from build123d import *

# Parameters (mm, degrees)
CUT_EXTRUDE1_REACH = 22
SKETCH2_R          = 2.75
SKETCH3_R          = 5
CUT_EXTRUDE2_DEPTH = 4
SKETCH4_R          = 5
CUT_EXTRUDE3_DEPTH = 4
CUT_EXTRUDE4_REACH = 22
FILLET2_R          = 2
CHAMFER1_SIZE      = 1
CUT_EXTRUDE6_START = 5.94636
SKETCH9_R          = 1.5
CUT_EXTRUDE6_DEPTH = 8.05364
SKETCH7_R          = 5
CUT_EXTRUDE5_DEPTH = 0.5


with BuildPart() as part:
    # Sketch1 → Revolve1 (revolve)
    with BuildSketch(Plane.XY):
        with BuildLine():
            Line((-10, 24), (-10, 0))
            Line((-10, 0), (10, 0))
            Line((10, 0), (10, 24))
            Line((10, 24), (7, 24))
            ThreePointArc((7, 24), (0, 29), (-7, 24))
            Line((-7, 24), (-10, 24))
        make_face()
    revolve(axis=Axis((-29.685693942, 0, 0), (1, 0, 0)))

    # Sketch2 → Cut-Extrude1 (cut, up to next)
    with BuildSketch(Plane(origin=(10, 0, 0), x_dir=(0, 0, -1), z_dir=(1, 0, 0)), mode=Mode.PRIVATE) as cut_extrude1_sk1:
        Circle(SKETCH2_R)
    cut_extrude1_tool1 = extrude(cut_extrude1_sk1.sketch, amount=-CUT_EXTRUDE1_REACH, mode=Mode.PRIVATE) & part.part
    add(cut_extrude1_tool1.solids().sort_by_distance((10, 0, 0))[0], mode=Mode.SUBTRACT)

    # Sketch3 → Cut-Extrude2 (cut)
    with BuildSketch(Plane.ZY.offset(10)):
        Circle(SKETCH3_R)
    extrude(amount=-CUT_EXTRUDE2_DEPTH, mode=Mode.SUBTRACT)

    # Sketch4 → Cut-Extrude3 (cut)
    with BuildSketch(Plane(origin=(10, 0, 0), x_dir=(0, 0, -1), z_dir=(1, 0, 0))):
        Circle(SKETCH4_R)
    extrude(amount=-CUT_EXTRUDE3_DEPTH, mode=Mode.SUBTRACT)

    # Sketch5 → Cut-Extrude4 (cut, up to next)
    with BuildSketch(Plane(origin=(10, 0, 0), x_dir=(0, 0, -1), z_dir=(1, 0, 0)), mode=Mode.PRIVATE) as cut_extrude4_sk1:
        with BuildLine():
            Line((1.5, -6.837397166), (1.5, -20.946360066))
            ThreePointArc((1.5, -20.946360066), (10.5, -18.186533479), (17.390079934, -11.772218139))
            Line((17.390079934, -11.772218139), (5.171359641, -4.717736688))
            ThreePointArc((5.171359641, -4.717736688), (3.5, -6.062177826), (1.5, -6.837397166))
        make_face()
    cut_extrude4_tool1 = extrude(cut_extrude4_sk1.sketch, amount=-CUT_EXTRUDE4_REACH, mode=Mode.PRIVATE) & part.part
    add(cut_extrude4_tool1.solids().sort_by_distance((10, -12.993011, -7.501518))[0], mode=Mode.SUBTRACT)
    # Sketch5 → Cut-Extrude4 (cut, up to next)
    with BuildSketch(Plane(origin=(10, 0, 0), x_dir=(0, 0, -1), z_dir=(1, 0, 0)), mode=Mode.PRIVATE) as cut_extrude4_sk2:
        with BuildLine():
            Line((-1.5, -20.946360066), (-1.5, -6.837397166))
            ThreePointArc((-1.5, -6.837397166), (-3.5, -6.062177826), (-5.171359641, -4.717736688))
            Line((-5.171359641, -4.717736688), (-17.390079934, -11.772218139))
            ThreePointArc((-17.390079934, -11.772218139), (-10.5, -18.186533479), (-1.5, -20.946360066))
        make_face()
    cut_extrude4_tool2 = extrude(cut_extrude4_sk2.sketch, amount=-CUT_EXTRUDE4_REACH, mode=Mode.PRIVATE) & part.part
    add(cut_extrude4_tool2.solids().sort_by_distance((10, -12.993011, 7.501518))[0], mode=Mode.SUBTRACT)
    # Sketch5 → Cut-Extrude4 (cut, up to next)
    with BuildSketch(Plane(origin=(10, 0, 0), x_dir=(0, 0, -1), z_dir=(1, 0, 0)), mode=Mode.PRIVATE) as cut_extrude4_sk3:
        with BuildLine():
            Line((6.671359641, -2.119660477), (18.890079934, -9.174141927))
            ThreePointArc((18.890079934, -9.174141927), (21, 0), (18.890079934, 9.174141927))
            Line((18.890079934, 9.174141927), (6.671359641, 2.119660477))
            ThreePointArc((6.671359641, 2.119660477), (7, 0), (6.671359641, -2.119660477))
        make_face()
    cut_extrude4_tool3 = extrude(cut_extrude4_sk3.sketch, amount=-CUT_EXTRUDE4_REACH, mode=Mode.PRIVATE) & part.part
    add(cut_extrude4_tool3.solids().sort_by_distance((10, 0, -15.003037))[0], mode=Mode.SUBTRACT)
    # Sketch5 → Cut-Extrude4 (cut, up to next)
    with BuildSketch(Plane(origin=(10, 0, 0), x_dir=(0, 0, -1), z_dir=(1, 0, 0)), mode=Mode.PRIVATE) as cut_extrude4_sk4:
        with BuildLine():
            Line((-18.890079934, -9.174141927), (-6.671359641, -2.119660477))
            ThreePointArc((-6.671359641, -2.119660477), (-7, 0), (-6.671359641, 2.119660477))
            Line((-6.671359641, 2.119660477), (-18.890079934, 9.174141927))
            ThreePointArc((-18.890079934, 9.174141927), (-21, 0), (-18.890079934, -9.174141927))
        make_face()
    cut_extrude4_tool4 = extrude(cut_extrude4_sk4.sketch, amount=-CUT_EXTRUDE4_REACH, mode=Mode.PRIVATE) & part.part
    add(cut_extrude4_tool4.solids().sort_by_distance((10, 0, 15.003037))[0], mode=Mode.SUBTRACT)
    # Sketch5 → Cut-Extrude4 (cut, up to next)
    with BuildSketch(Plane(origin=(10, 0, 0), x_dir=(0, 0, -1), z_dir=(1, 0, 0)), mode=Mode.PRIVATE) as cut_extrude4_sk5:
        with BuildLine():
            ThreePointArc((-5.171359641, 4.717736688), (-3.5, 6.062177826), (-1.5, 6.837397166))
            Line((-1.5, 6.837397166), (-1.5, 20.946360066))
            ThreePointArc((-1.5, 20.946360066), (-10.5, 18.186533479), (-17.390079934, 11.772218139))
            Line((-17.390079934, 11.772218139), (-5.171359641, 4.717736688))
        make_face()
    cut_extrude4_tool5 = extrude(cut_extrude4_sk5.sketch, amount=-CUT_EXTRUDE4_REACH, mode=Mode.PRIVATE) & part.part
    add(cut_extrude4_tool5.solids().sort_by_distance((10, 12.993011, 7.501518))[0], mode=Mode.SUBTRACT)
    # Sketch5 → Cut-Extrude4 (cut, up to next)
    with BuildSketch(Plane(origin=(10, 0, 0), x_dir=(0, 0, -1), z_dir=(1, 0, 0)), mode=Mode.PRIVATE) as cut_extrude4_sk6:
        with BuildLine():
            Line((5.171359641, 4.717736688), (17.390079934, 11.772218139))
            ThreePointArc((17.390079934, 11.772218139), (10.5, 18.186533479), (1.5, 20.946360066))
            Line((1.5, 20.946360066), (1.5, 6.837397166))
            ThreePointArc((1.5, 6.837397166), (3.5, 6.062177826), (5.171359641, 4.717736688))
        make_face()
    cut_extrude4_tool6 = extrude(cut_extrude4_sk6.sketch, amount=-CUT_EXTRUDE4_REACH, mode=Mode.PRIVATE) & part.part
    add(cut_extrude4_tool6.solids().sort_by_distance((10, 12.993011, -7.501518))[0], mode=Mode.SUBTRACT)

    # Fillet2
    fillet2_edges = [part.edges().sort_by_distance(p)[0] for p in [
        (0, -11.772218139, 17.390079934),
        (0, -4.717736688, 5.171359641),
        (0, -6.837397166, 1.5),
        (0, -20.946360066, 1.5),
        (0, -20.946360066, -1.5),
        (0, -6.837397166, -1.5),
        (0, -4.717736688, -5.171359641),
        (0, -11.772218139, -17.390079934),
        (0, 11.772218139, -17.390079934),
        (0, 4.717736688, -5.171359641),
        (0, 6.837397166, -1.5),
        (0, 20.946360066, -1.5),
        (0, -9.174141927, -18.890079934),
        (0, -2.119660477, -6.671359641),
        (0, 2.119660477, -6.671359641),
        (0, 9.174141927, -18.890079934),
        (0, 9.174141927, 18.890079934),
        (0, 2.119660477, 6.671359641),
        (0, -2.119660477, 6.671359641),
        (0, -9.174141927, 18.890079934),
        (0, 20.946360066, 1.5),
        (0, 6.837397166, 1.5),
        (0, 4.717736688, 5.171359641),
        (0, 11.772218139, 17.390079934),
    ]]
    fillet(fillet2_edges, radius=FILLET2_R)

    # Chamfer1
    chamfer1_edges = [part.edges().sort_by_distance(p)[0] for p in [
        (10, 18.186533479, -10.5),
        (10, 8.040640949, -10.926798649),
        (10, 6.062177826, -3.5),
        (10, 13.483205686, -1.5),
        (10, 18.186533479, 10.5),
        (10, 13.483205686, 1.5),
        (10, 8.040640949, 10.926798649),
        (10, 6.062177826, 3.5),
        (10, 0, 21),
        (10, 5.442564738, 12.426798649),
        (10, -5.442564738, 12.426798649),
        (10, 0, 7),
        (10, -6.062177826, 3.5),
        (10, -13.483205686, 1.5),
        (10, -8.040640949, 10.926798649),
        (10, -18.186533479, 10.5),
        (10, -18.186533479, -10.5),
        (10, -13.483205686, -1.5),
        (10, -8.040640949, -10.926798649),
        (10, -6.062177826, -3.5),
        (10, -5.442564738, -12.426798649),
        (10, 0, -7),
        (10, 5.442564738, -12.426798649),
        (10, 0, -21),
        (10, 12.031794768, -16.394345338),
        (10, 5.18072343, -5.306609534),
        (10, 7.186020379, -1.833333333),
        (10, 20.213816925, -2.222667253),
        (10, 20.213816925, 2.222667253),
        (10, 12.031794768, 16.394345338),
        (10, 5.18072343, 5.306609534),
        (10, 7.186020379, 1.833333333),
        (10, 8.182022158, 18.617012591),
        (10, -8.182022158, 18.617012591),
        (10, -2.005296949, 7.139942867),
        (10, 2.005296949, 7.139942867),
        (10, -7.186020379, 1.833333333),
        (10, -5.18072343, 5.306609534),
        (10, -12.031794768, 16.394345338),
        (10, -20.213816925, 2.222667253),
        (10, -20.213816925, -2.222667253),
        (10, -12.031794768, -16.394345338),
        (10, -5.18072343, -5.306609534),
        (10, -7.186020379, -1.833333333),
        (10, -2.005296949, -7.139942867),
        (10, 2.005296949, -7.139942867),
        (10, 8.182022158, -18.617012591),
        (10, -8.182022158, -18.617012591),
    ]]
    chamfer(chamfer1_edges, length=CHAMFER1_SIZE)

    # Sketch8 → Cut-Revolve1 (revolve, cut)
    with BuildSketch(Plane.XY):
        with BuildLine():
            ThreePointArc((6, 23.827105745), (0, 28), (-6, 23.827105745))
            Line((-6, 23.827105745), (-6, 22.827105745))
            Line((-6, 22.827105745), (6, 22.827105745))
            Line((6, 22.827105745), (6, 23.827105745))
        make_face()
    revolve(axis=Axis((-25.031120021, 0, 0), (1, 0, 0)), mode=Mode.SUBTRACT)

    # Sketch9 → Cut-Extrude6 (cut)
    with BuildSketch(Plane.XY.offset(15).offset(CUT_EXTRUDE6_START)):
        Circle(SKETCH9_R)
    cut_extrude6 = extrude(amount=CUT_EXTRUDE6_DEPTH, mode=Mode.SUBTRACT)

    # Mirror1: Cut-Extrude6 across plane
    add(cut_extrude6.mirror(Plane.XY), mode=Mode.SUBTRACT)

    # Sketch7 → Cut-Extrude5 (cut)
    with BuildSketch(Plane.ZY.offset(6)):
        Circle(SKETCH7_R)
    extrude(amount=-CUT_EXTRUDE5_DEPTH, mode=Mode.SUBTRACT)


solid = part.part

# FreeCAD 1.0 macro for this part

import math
import FreeCAD as App
import Part
import Sketcher
Q = App.Units.Quantity


def edges_at(feature, points):
    """Names of the edges that pass closest to the given points."""
    edges = feature.Shape.Edges
    near = lambda p: min(range(len(edges)), key=lambda i: edges[i].distToShape(Part.Vertex(*p))[0])
    return sorted({f"Edge{near(p) + 1}" for p in points})

doc = App.newDocument("Part")
params = doc.addObject("Spreadsheet::Sheet", "Params")
for row, (alias, value) in enumerate([
    ("sketch1_radius", "7.4 mm"),
    ("sketch1_width", "20 mm"),
    ("sketch1_width2", "3 mm"),
    ("sketch1_height", "24 mm"),
    ("revolution_angle", "360 deg"),
    ("sketch2_diameter", "5.5 mm"),
    ("sketch3_diameter", "10 mm"),
    ("pocket2_length", "4 mm"),
    ("sketch4_diameter", "10 mm"),
    ("pocket3_length", "4 mm"),
    ("sketch5_radius", "21 mm"),
    ("sketch5_radius2", "7 mm"),
    ("sketch6_radius", "7 mm"),
    ("sketch6_radius2", "21 mm"),
    ("sketch7_radius", "21 mm"),
    ("sketch7_radius2", "7 mm"),
    ("sketch8_radius", "7 mm"),
    ("sketch8_radius2", "21 mm"),
    ("sketch9_radius", "7 mm"),
    ("sketch9_radius2", "21 mm"),
    ("sketch10_radius", "21 mm"),
    ("sketch10_radius2", "7 mm"),
    ("fillet_radius", "2 mm"),
    ("chamfer_size", "1 mm"),
    ("sketch11_radius", "6.4 mm"),
    ("sketch11_width", "12 mm"),
    ("sketch11_height", "1 mm"),
    ("groove_angle", "360 deg"),
    ("sketch12_diameter", "3 mm"),
    ("pocket10_length", "8.05364 mm"),
    ("sketch13_diameter", "10 mm"),
    ("pocket11_length", "0.5 mm"),
], start=1):
    params.set(f"A{row}", alias)
    params.set(f"B{row}", "=" + value)
    params.setAlias(f"B{row}", alias)

body = doc.addObject("PartDesign::Body", "Body")

# Sketch on XY plane
sketch1 = doc.addObject("Sketcher::SketchObject", "Sketch")
body.addObject(sketch1)
sketch1.AttachmentSupport = (doc.XY_Plane, [""])
sketch1.MapMode = "FlatFace"
sketch1.addGeometry(Part.LineSegment(App.Vector(-10, 24, 0), App.Vector(-10, 0, 0)), False)
sketch1.addGeometry(Part.LineSegment(App.Vector(-10, 0, 0), App.Vector(10, 0, 0)), False)
sketch1.addGeometry(Part.LineSegment(App.Vector(10, 0, 0), App.Vector(10, 24, 0)), False)
sketch1.addGeometry(Part.LineSegment(App.Vector(10, 24, 0), App.Vector(7, 24, 0)), False)
sketch1.addGeometry(Part.ArcOfCircle(Part.Circle(App.Vector(0, 21.6, 0), App.Vector(0, 0, 1), 7.4), math.radians(19), math.radians(161)), False)
sketch1.addGeometry(Part.LineSegment(App.Vector(-7, 24, 0), App.Vector(-10, 24, 0)), False)
sketch1.addConstraint(Sketcher.Constraint("Coincident", 0, 2, 1, 1))
sketch1.addConstraint(Sketcher.Constraint("Coincident", 1, 2, 2, 1))
sketch1.addConstraint(Sketcher.Constraint("Coincident", 2, 2, 3, 1))
sketch1.addConstraint(Sketcher.Constraint("Coincident", 3, 2, 4, 1))
sketch1.addConstraint(Sketcher.Constraint("Coincident", 4, 2, 5, 1))
sketch1.addConstraint(Sketcher.Constraint("Coincident", 5, 2, 0, 1))
sketch1.addConstraint(Sketcher.Constraint("Vertical", 0))
sketch1.addConstraint(Sketcher.Constraint("Horizontal", 1))
sketch1.addConstraint(Sketcher.Constraint("Vertical", 2))
sketch1.addConstraint(Sketcher.Constraint("Horizontal", 3))
sketch1.addConstraint(Sketcher.Constraint("Horizontal", 5))
sketch1.addConstraint(Sketcher.Constraint("Symmetric", 0, 2, 1, 2, -1, 1))
sketch1.addConstraint(Sketcher.Constraint("Symmetric", 3, 2, 4, 2, -2))
sketch1.addConstraint(Sketcher.Constraint("Radius", 4, Q("7.4 mm")))
sketch1.addConstraint(Sketcher.Constraint("DistanceX", 1, 1, 1, 2, Q("20 mm")))
sketch1.addConstraint(Sketcher.Constraint("DistanceX", 3, 2, 3, 1, Q("3 mm")))
sketch1.addConstraint(Sketcher.Constraint("DistanceY", 0, 2, 0, 1, Q("24 mm")))
sketch1.setExpression("Constraints[13]", "Params.sketch1_radius")
sketch1.setExpression("Constraints[14]", "Params.sketch1_width")
sketch1.setExpression("Constraints[15]", "Params.sketch1_width2")
sketch1.setExpression("Constraints[16]", "Params.sketch1_height")
revolution = doc.addObject("PartDesign::Revolution", "Revolution")
body.addObject(revolution)
revolution.Profile = sketch1
revolution.ReferenceAxis = (sketch1, ["H_Axis"])
revolution.setExpression("Angle", "Params.revolution_angle")

# Sketch on YZ plane
sketch2 = doc.addObject("Sketcher::SketchObject", "Sketch001")
body.addObject(sketch2)
sketch2.AttachmentSupport = (doc.YZ_Plane, [""])
sketch2.MapMode = "FlatFace"
sketch2.AttachmentOffset = App.Placement(App.Vector(0, 0, 10), App.Rotation())
sketch2.addGeometry(Part.Circle(App.Vector(0, 0, 0), App.Vector(0, 0, 1), 2.8), False)
sketch2.addConstraint(Sketcher.Constraint("Coincident", 0, 3, -1, 1))
sketch2.addConstraint(Sketcher.Constraint("Diameter", 0, Q("5.5 mm")))
sketch2.setExpression("Constraints[1]", "Params.sketch2_diameter")
pocket1 = doc.addObject("PartDesign::Pocket", "Pocket")
body.addObject(pocket1)
pocket1.Profile = sketch2
pocket1.Type = "UpToFirst"

# Sketch on YZ plane
sketch3 = doc.addObject("Sketcher::SketchObject", "Sketch002")
body.addObject(sketch3)
sketch3.AttachmentSupport = (doc.YZ_Plane, [""])
sketch3.MapMode = "FlatFace"
sketch3.AttachmentOffset = App.Placement(App.Vector(0, 0, -10), App.Rotation())
sketch3.addGeometry(Part.Circle(App.Vector(0, 0, 0), App.Vector(0, 0, 1), 5), False)
sketch3.addConstraint(Sketcher.Constraint("Coincident", 0, 3, -1, 1))
sketch3.addConstraint(Sketcher.Constraint("Diameter", 0, Q("10 mm")))
sketch3.setExpression("Constraints[1]", "Params.sketch3_diameter")
pocket2 = doc.addObject("PartDesign::Pocket", "Pocket001")
body.addObject(pocket2)
pocket2.Profile = sketch3
pocket2.setExpression("Length", "Params.pocket2_length")
pocket2.Reversed = True

# Sketch on YZ plane
sketch4 = doc.addObject("Sketcher::SketchObject", "Sketch003")
body.addObject(sketch4)
sketch4.AttachmentSupport = (doc.YZ_Plane, [""])
sketch4.MapMode = "FlatFace"
sketch4.AttachmentOffset = App.Placement(App.Vector(0, 0, 10), App.Rotation())
sketch4.addGeometry(Part.Circle(App.Vector(0, 0, 0), App.Vector(0, 0, 1), 5), False)
sketch4.addConstraint(Sketcher.Constraint("Coincident", 0, 3, -1, 1))
sketch4.addConstraint(Sketcher.Constraint("Diameter", 0, Q("10 mm")))
sketch4.setExpression("Constraints[1]", "Params.sketch4_diameter")
pocket3 = doc.addObject("PartDesign::Pocket", "Pocket002")
body.addObject(pocket3)
pocket3.Profile = sketch4
pocket3.setExpression("Length", "Params.pocket3_length")

# Sketch on YZ plane
sketch5 = doc.addObject("Sketcher::SketchObject", "Sketch004")
body.addObject(sketch5)
sketch5.AttachmentSupport = (doc.YZ_Plane, [""])
sketch5.MapMode = "FlatFace"
sketch5.AttachmentOffset = App.Placement(App.Vector(0, 0, 10), App.Rotation())
sketch5.addGeometry(Part.LineSegment(App.Vector(-6.8, -1.5, 0), App.Vector(-20.9, -1.5, 0)), False)
sketch5.addGeometry(Part.ArcOfCircle(Part.Circle(App.Vector(0, 0, 0), App.Vector(0, 0, 1), 21), math.radians(-176), math.radians(-124)), False)
sketch5.addGeometry(Part.LineSegment(App.Vector(-11.8, -17.4, 0), App.Vector(-4.7, -5.2, 0)), False)
sketch5.addGeometry(Part.ArcOfCircle(Part.Circle(App.Vector(0, 0, 0), App.Vector(0, 0, 1), 7), math.radians(-168), math.radians(-132)), False)
sketch5.addConstraint(Sketcher.Constraint("Coincident", 0, 2, 1, 1))
sketch5.addConstraint(Sketcher.Constraint("Coincident", 1, 2, 2, 1))
sketch5.addConstraint(Sketcher.Constraint("Coincident", 2, 2, 3, 2))
sketch5.addConstraint(Sketcher.Constraint("Coincident", 3, 1, 0, 1))
sketch5.addConstraint(Sketcher.Constraint("Horizontal", 0))
sketch5.addConstraint(Sketcher.Constraint("Coincident", 1, 3, -1, 1))
sketch5.addConstraint(Sketcher.Constraint("Coincident", 3, 3, -1, 1))
sketch5.addConstraint(Sketcher.Constraint("Radius", 1, Q("21 mm")))
sketch5.addConstraint(Sketcher.Constraint("Radius", 3, Q("7 mm")))
sketch5.addConstraint(Sketcher.Constraint("Angle", 2, Q("60 deg")))
sketch5.addConstraint(Sketcher.Constraint("DistanceY", 0, 2, -1, 1, Q("1.5 mm")))
sketch5.addConstraint(Sketcher.Constraint("DistanceX", 1, 2, -1, 1, Q("11.772218 mm")))
sketch5.setExpression("Constraints[7]", "Params.sketch5_radius")
sketch5.setExpression("Constraints[8]", "Params.sketch5_radius2")
pocket4 = doc.addObject("PartDesign::Pocket", "Pocket003")
body.addObject(pocket4)
pocket4.Profile = sketch5
pocket4.Type = "UpToFirst"

# Sketch on YZ plane
sketch6 = doc.addObject("Sketcher::SketchObject", "Sketch005")
body.addObject(sketch6)
sketch6.AttachmentSupport = (doc.YZ_Plane, [""])
sketch6.MapMode = "FlatFace"
sketch6.AttachmentOffset = App.Placement(App.Vector(0, 0, 10), App.Rotation())
sketch6.addGeometry(Part.LineSegment(App.Vector(-20.9, 1.5, 0), App.Vector(-6.8, 1.5, 0)), False)
sketch6.addGeometry(Part.ArcOfCircle(Part.Circle(App.Vector(0, 0, 0), App.Vector(0, 0, 1), 7), math.radians(132), math.radians(168)), False)
sketch6.addGeometry(Part.LineSegment(App.Vector(-4.7, 5.2, 0), App.Vector(-11.8, 17.4, 0)), False)
sketch6.addGeometry(Part.ArcOfCircle(Part.Circle(App.Vector(0, 0, 0), App.Vector(0, 0, 1), 21), math.radians(124), math.radians(176)), False)
sketch6.addConstraint(Sketcher.Constraint("Coincident", 0, 2, 1, 2))
sketch6.addConstraint(Sketcher.Constraint("Coincident", 1, 1, 2, 1))
sketch6.addConstraint(Sketcher.Constraint("Coincident", 2, 2, 3, 1))
sketch6.addConstraint(Sketcher.Constraint("Coincident", 3, 2, 0, 1))
sketch6.addConstraint(Sketcher.Constraint("Horizontal", 0))
sketch6.addConstraint(Sketcher.Constraint("Coincident", 1, 3, -1, 1))
sketch6.addConstraint(Sketcher.Constraint("Coincident", 3, 3, -1, 1))
sketch6.addConstraint(Sketcher.Constraint("Radius", 1, Q("7 mm")))
sketch6.addConstraint(Sketcher.Constraint("Radius", 3, Q("21 mm")))
sketch6.addConstraint(Sketcher.Constraint("Angle", 2, Q("120 deg")))
sketch6.addConstraint(Sketcher.Constraint("DistanceY", -1, 1, 0, 2, Q("1.5 mm")))
sketch6.addConstraint(Sketcher.Constraint("DistanceY", -1, 1, 1, 1, Q("5.17136 mm")))
sketch6.setExpression("Constraints[7]", "Params.sketch6_radius")
sketch6.setExpression("Constraints[8]", "Params.sketch6_radius2")
pocket5 = doc.addObject("PartDesign::Pocket", "Pocket004")
body.addObject(pocket5)
pocket5.Profile = sketch6
pocket5.Type = "UpToFirst"

# Sketch on YZ plane
sketch7 = doc.addObject("Sketcher::SketchObject", "Sketch006")
body.addObject(sketch7)
sketch7.AttachmentSupport = (doc.YZ_Plane, [""])
sketch7.MapMode = "FlatFace"
sketch7.AttachmentOffset = App.Placement(App.Vector(0, 0, 10), App.Rotation())
sketch7.addGeometry(Part.LineSegment(App.Vector(-2.1, -6.7, 0), App.Vector(-9.2, -18.9, 0)), False)
sketch7.addGeometry(Part.ArcOfCircle(Part.Circle(App.Vector(0, 0, 0), App.Vector(0, 0, 1), 21), math.radians(-116), math.radians(-64)), False)
sketch7.addGeometry(Part.LineSegment(App.Vector(9.2, -18.9, 0), App.Vector(2.1, -6.7, 0)), False)
sketch7.addGeometry(Part.ArcOfCircle(Part.Circle(App.Vector(0, 0, 0), App.Vector(0, 0, 1), 7), math.radians(-108), math.radians(-72)), False)
sketch7.addConstraint(Sketcher.Constraint("Coincident", 0, 2, 1, 1))
sketch7.addConstraint(Sketcher.Constraint("Coincident", 1, 2, 2, 1))
sketch7.addConstraint(Sketcher.Constraint("Coincident", 2, 2, 3, 2))
sketch7.addConstraint(Sketcher.Constraint("Coincident", 3, 1, 0, 1))
sketch7.addConstraint(Sketcher.Constraint("Coincident", 1, 3, -1, 1))
sketch7.addConstraint(Sketcher.Constraint("Coincident", 3, 3, -1, 1))
sketch7.addConstraint(Sketcher.Constraint("Horizontal", 0, 2, 1, 2))
sketch7.addConstraint(Sketcher.Constraint("Horizontal", 2, 2, 3, 1))
sketch7.addConstraint(Sketcher.Constraint("Radius", 1, Q("21 mm")))
sketch7.addConstraint(Sketcher.Constraint("Radius", 3, Q("7 mm")))
sketch7.addConstraint(Sketcher.Constraint("Angle", 0, Q("-120 deg")))
sketch7.addConstraint(Sketcher.Constraint("DistanceX", 0, 2, -1, 1, Q("9.174142 mm")))
sketch7.setExpression("Constraints[8]", "Params.sketch7_radius")
sketch7.setExpression("Constraints[9]", "Params.sketch7_radius2")
pocket6 = doc.addObject("PartDesign::Pocket", "Pocket005")
body.addObject(pocket6)
pocket6.Profile = sketch7
pocket6.Type = "UpToFirst"

# Sketch on YZ plane
sketch8 = doc.addObject("Sketcher::SketchObject", "Sketch007")
body.addObject(sketch8)
sketch8.AttachmentSupport = (doc.YZ_Plane, [""])
sketch8.MapMode = "FlatFace"
sketch8.AttachmentOffset = App.Placement(App.Vector(0, 0, 10), App.Rotation())
sketch8.addGeometry(Part.LineSegment(App.Vector(-9.2, 18.9, 0), App.Vector(-2.1, 6.7, 0)), False)
sketch8.addGeometry(Part.ArcOfCircle(Part.Circle(App.Vector(0, 0, 0), App.Vector(0, 0, 1), 7), math.radians(72), math.radians(108)), False)
sketch8.addGeometry(Part.LineSegment(App.Vector(2.1, 6.7, 0), App.Vector(9.2, 18.9, 0)), False)
sketch8.addGeometry(Part.ArcOfCircle(Part.Circle(App.Vector(0, 0, 0), App.Vector(0, 0, 1), 21), math.radians(64), math.radians(116)), False)
sketch8.addConstraint(Sketcher.Constraint("Coincident", 0, 2, 1, 2))
sketch8.addConstraint(Sketcher.Constraint("Coincident", 1, 1, 2, 1))
sketch8.addConstraint(Sketcher.Constraint("Coincident", 2, 2, 3, 1))
sketch8.addConstraint(Sketcher.Constraint("Coincident", 3, 2, 0, 1))
sketch8.addConstraint(Sketcher.Constraint("Coincident", 1, 3, -1, 1))
sketch8.addConstraint(Sketcher.Constraint("Coincident", 3, 3, -1, 1))
sketch8.addConstraint(Sketcher.Constraint("Horizontal", 0, 2, 1, 1))
sketch8.addConstraint(Sketcher.Constraint("Horizontal", 2, 2, 3, 2))
sketch8.addConstraint(Sketcher.Constraint("Radius", 1, Q("7 mm")))
sketch8.addConstraint(Sketcher.Constraint("Radius", 3, Q("21 mm")))
sketch8.addConstraint(Sketcher.Constraint("Angle", 0, Q("-60 deg")))
sketch8.addConstraint(Sketcher.Constraint("DistanceX", 0, 2, -1, 1, Q("2.11966 mm")))
sketch8.setExpression("Constraints[8]", "Params.sketch8_radius")
sketch8.setExpression("Constraints[9]", "Params.sketch8_radius2")
pocket7 = doc.addObject("PartDesign::Pocket", "Pocket006")
body.addObject(pocket7)
pocket7.Profile = sketch8
pocket7.Type = "UpToFirst"

# Sketch on YZ plane
sketch9 = doc.addObject("Sketcher::SketchObject", "Sketch008")
body.addObject(sketch9)
sketch9.AttachmentSupport = (doc.YZ_Plane, [""])
sketch9.MapMode = "FlatFace"
sketch9.AttachmentOffset = App.Placement(App.Vector(0, 0, 10), App.Rotation())
sketch9.addGeometry(Part.ArcOfCircle(Part.Circle(App.Vector(0, 0, 0), App.Vector(0, 0, 1), 7), math.radians(12), math.radians(48)), False)
sketch9.addGeometry(Part.LineSegment(App.Vector(6.8, 1.5, 0), App.Vector(20.9, 1.5, 0)), False)
sketch9.addGeometry(Part.ArcOfCircle(Part.Circle(App.Vector(0, 0, 0), App.Vector(0, 0, 1), 21), math.radians(4), math.radians(56)), False)
sketch9.addGeometry(Part.LineSegment(App.Vector(11.8, 17.4, 0), App.Vector(4.7, 5.2, 0)), False)
sketch9.addConstraint(Sketcher.Constraint("Coincident", 0, 1, 1, 1))
sketch9.addConstraint(Sketcher.Constraint("Coincident", 1, 2, 2, 1))
sketch9.addConstraint(Sketcher.Constraint("Coincident", 2, 2, 3, 1))
sketch9.addConstraint(Sketcher.Constraint("Coincident", 3, 2, 0, 2))
sketch9.addConstraint(Sketcher.Constraint("Horizontal", 1))
sketch9.addConstraint(Sketcher.Constraint("Coincident", 0, 3, -1, 1))
sketch9.addConstraint(Sketcher.Constraint("Coincident", 2, 3, -1, 1))
sketch9.addConstraint(Sketcher.Constraint("Radius", 0, Q("7 mm")))
sketch9.addConstraint(Sketcher.Constraint("Radius", 2, Q("21 mm")))
sketch9.addConstraint(Sketcher.Constraint("Angle", 3, Q("-120 deg")))
sketch9.addConstraint(Sketcher.Constraint("DistanceY", -1, 1, 0, 1, Q("1.5 mm")))
sketch9.addConstraint(Sketcher.Constraint("DistanceX", -1, 1, 2, 2, Q("11.772218 mm")))
sketch9.setExpression("Constraints[7]", "Params.sketch9_radius")
sketch9.setExpression("Constraints[8]", "Params.sketch9_radius2")
pocket8 = doc.addObject("PartDesign::Pocket", "Pocket007")
body.addObject(pocket8)
pocket8.Profile = sketch9
pocket8.Type = "UpToFirst"

# Sketch on YZ plane
sketch10 = doc.addObject("Sketcher::SketchObject", "Sketch009")
body.addObject(sketch10)
sketch10.AttachmentSupport = (doc.YZ_Plane, [""])
sketch10.MapMode = "FlatFace"
sketch10.AttachmentOffset = App.Placement(App.Vector(0, 0, 10), App.Rotation())
sketch10.addGeometry(Part.LineSegment(App.Vector(4.7, -5.2, 0), App.Vector(11.8, -17.4, 0)), False)
sketch10.addGeometry(Part.ArcOfCircle(Part.Circle(App.Vector(0, 0, 0), App.Vector(0, 0, 1), 21), math.radians(-56), math.radians(-4)), False)
sketch10.addGeometry(Part.LineSegment(App.Vector(20.9, -1.5, 0), App.Vector(6.8, -1.5, 0)), False)
sketch10.addGeometry(Part.ArcOfCircle(Part.Circle(App.Vector(0, 0, 0), App.Vector(0, 0, 1), 7), math.radians(-48), math.radians(-12)), False)
sketch10.addConstraint(Sketcher.Constraint("Coincident", 0, 2, 1, 1))
sketch10.addConstraint(Sketcher.Constraint("Coincident", 1, 2, 2, 1))
sketch10.addConstraint(Sketcher.Constraint("Coincident", 2, 2, 3, 2))
sketch10.addConstraint(Sketcher.Constraint("Coincident", 3, 1, 0, 1))
sketch10.addConstraint(Sketcher.Constraint("Horizontal", 2))
sketch10.addConstraint(Sketcher.Constraint("Coincident", 1, 3, -1, 1))
sketch10.addConstraint(Sketcher.Constraint("Coincident", 3, 3, -1, 1))
sketch10.addConstraint(Sketcher.Constraint("Radius", 1, Q("21 mm")))
sketch10.addConstraint(Sketcher.Constraint("Radius", 3, Q("7 mm")))
sketch10.addConstraint(Sketcher.Constraint("Angle", 0, Q("-60 deg")))
sketch10.addConstraint(Sketcher.Constraint("DistanceY", 1, 2, -1, 1, Q("1.5 mm")))
sketch10.addConstraint(Sketcher.Constraint("DistanceX", -1, 1, 0, 2, Q("11.772218 mm")))
sketch10.setExpression("Constraints[7]", "Params.sketch10_radius")
sketch10.setExpression("Constraints[8]", "Params.sketch10_radius2")
pocket9 = doc.addObject("PartDesign::Pocket", "Pocket008")
body.addObject(pocket9)
pocket9.Profile = sketch10
pocket9.Type = "UpToFirst"
doc.recompute()

fillet = doc.addObject("PartDesign::Fillet", "Fillet")
body.addObject(fillet)
fillet.Base = (pocket9, edges_at(pocket9, [
    (0, -11.772, 17.39),
    (0, -4.718, 5.171),
    (0, -6.837, 1.5),
    (0, -20.946, 1.5),
    (0, -20.946, -1.5),
    (0, -6.837, -1.5),
    (0, -4.718, -5.171),
    (0, -11.772, -17.39),
    (0, 11.772, -17.39),
    (0, 4.718, -5.171),
    (0, 6.837, -1.5),
    (0, 20.946, -1.5),
    (0, -9.174, -18.89),
    (0, -2.12, -6.671),
    (0, 2.12, -6.671),
    (0, 9.174, -18.89),
    (0, 9.174, 18.89),
    (0, 2.12, 6.671),
    (0, -2.12, 6.671),
    (0, -9.174, 18.89),
    (0, 20.946, 1.5),
    (0, 6.837, 1.5),
    (0, 4.718, 5.171),
    (0, 11.772, 17.39),
]))
fillet.setExpression("Radius", "Params.fillet_radius")
doc.recompute()

chamfer = doc.addObject("PartDesign::Chamfer", "Chamfer")
body.addObject(chamfer)
chamfer.Base = (fillet, edges_at(fillet, [
    (10, 18.187, -10.5),
    (10, 8.041, -10.927),
    (10, 6.062, -3.5),
    (10, 13.483, -1.5),
    (10, 18.187, 10.5),
    (10, 13.483, 1.5),
    (10, 8.041, 10.927),
    (10, 6.062, 3.5),
    (10, 0, 21),
    (10, 5.443, 12.427),
    (10, -5.443, 12.427),
    (10, 0, 7),
    (10, -6.062, 3.5),
    (10, -13.483, 1.5),
    (10, -8.041, 10.927),
    (10, -18.187, 10.5),
    (10, -18.187, -10.5),
    (10, -13.483, -1.5),
    (10, -8.041, -10.927),
    (10, -6.062, -3.5),
    (10, -5.443, -12.427),
    (10, 0, -7),
    (10, 5.443, -12.427),
    (10, 0, -21),
    (10, 12.032, -16.394),
    (10, 5.181, -5.307),
    (10, 7.186, -1.833),
    (10, 20.214, -2.223),
    (10, 20.214, 2.223),
    (10, 12.032, 16.394),
    (10, 5.181, 5.307),
    (10, 7.186, 1.833),
    (10, 8.182, 18.617),
    (10, -8.182, 18.617),
    (10, -2.005, 7.14),
    (10, 2.005, 7.14),
    (10, -7.186, 1.833),
    (10, -5.181, 5.307),
    (10, -12.032, 16.394),
    (10, -20.214, 2.223),
    (10, -20.214, -2.223),
    (10, -12.032, -16.394),
    (10, -5.181, -5.307),
    (10, -7.186, -1.833),
    (10, -2.005, -7.14),
    (10, 2.005, -7.14),
    (10, 8.182, -18.617),
    (10, -8.182, -18.617),
]))
chamfer.setExpression("Size", "Params.chamfer_size")

# Sketch on XY plane
sketch11 = doc.addObject("Sketcher::SketchObject", "Sketch010")
body.addObject(sketch11)
sketch11.AttachmentSupport = (doc.XY_Plane, [""])
sketch11.MapMode = "FlatFace"
sketch11.addGeometry(Part.ArcOfCircle(Part.Circle(App.Vector(0, 21.6, 0), App.Vector(0, 0, 1), 6.4), math.radians(20), math.radians(160)), False)
sketch11.addGeometry(Part.LineSegment(App.Vector(-6, 23.8, 0), App.Vector(-6, 22.8, 0)), False)
sketch11.addGeometry(Part.LineSegment(App.Vector(-6, 22.8, 0), App.Vector(6, 22.8, 0)), False)
sketch11.addGeometry(Part.LineSegment(App.Vector(6, 22.8, 0), App.Vector(6, 23.8, 0)), False)
sketch11.addConstraint(Sketcher.Constraint("Coincident", 0, 2, 1, 1))
sketch11.addConstraint(Sketcher.Constraint("Coincident", 1, 2, 2, 1))
sketch11.addConstraint(Sketcher.Constraint("Coincident", 2, 2, 3, 1))
sketch11.addConstraint(Sketcher.Constraint("Coincident", 3, 2, 0, 1))
sketch11.addConstraint(Sketcher.Constraint("Vertical", 1))
sketch11.addConstraint(Sketcher.Constraint("Horizontal", 2))
sketch11.addConstraint(Sketcher.Constraint("Vertical", 3))
sketch11.addConstraint(Sketcher.Constraint("Symmetric", 0, 2, 3, 2, -2))
sketch11.addConstraint(Sketcher.Constraint("Radius", 0, Q("6.4 mm")))
sketch11.addConstraint(Sketcher.Constraint("DistanceX", 2, 1, 2, 2, Q("12 mm")))
sketch11.addConstraint(Sketcher.Constraint("DistanceY", 1, 2, 1, 1, Q("1 mm")))
sketch11.addConstraint(Sketcher.Constraint("DistanceY", -1, 1, 0, 3, Q("21.6 mm")))
sketch11.setExpression("Constraints[8]", "Params.sketch11_radius")
sketch11.setExpression("Constraints[9]", "Params.sketch11_width")
sketch11.setExpression("Constraints[10]", "Params.sketch11_height")
groove = doc.addObject("PartDesign::Groove", "Groove")
body.addObject(groove)
groove.Profile = sketch11
groove.ReferenceAxis = (sketch11, ["H_Axis"])
groove.setExpression("Angle", "Params.groove_angle")

# Sketch on XY plane
sketch12 = doc.addObject("Sketcher::SketchObject", "Sketch011")
body.addObject(sketch12)
sketch12.AttachmentSupport = (doc.XY_Plane, [""])
sketch12.MapMode = "FlatFace"
sketch12.AttachmentOffset = App.Placement(App.Vector(0, 0, 20.94636), App.Rotation())
sketch12.addGeometry(Part.Circle(App.Vector(0, 0, 0), App.Vector(0, 0, 1), 1.5), False)
sketch12.addConstraint(Sketcher.Constraint("Coincident", 0, 3, -1, 1))
sketch12.addConstraint(Sketcher.Constraint("Diameter", 0, Q("3 mm")))
sketch12.setExpression("Constraints[1]", "Params.sketch12_diameter")
pocket10 = doc.addObject("PartDesign::Pocket", "Pocket009")
body.addObject(pocket10)
pocket10.Profile = sketch12
pocket10.setExpression("Length", "Params.pocket10_length")
pocket10.Reversed = True
doc.recompute()

mirrored = doc.addObject("PartDesign::Mirrored", "Mirrored")
body.addObject(mirrored)
mirrored.Originals = [pocket10]
mirrored.MirrorPlane = (doc.XY_Plane, [""])
body.Tip = mirrored

# Sketch on YZ plane
sketch13 = doc.addObject("Sketcher::SketchObject", "Sketch012")
body.addObject(sketch13)
sketch13.AttachmentSupport = (doc.YZ_Plane, [""])
sketch13.MapMode = "FlatFace"
sketch13.AttachmentOffset = App.Placement(App.Vector(0, 0, -6), App.Rotation())
sketch13.addGeometry(Part.Circle(App.Vector(0, 0, 0), App.Vector(0, 0, 1), 5), False)
sketch13.addConstraint(Sketcher.Constraint("Coincident", 0, 3, -1, 1))
sketch13.addConstraint(Sketcher.Constraint("Diameter", 0, Q("10 mm")))
sketch13.setExpression("Constraints[1]", "Params.sketch13_diameter")
pocket11 = doc.addObject("PartDesign::Pocket", "Pocket010")
body.addObject(pocket11)
pocket11.Profile = sketch13
pocket11.setExpression("Length", "Params.pocket11_length")
pocket11.Reversed = True

doc.recompute()
